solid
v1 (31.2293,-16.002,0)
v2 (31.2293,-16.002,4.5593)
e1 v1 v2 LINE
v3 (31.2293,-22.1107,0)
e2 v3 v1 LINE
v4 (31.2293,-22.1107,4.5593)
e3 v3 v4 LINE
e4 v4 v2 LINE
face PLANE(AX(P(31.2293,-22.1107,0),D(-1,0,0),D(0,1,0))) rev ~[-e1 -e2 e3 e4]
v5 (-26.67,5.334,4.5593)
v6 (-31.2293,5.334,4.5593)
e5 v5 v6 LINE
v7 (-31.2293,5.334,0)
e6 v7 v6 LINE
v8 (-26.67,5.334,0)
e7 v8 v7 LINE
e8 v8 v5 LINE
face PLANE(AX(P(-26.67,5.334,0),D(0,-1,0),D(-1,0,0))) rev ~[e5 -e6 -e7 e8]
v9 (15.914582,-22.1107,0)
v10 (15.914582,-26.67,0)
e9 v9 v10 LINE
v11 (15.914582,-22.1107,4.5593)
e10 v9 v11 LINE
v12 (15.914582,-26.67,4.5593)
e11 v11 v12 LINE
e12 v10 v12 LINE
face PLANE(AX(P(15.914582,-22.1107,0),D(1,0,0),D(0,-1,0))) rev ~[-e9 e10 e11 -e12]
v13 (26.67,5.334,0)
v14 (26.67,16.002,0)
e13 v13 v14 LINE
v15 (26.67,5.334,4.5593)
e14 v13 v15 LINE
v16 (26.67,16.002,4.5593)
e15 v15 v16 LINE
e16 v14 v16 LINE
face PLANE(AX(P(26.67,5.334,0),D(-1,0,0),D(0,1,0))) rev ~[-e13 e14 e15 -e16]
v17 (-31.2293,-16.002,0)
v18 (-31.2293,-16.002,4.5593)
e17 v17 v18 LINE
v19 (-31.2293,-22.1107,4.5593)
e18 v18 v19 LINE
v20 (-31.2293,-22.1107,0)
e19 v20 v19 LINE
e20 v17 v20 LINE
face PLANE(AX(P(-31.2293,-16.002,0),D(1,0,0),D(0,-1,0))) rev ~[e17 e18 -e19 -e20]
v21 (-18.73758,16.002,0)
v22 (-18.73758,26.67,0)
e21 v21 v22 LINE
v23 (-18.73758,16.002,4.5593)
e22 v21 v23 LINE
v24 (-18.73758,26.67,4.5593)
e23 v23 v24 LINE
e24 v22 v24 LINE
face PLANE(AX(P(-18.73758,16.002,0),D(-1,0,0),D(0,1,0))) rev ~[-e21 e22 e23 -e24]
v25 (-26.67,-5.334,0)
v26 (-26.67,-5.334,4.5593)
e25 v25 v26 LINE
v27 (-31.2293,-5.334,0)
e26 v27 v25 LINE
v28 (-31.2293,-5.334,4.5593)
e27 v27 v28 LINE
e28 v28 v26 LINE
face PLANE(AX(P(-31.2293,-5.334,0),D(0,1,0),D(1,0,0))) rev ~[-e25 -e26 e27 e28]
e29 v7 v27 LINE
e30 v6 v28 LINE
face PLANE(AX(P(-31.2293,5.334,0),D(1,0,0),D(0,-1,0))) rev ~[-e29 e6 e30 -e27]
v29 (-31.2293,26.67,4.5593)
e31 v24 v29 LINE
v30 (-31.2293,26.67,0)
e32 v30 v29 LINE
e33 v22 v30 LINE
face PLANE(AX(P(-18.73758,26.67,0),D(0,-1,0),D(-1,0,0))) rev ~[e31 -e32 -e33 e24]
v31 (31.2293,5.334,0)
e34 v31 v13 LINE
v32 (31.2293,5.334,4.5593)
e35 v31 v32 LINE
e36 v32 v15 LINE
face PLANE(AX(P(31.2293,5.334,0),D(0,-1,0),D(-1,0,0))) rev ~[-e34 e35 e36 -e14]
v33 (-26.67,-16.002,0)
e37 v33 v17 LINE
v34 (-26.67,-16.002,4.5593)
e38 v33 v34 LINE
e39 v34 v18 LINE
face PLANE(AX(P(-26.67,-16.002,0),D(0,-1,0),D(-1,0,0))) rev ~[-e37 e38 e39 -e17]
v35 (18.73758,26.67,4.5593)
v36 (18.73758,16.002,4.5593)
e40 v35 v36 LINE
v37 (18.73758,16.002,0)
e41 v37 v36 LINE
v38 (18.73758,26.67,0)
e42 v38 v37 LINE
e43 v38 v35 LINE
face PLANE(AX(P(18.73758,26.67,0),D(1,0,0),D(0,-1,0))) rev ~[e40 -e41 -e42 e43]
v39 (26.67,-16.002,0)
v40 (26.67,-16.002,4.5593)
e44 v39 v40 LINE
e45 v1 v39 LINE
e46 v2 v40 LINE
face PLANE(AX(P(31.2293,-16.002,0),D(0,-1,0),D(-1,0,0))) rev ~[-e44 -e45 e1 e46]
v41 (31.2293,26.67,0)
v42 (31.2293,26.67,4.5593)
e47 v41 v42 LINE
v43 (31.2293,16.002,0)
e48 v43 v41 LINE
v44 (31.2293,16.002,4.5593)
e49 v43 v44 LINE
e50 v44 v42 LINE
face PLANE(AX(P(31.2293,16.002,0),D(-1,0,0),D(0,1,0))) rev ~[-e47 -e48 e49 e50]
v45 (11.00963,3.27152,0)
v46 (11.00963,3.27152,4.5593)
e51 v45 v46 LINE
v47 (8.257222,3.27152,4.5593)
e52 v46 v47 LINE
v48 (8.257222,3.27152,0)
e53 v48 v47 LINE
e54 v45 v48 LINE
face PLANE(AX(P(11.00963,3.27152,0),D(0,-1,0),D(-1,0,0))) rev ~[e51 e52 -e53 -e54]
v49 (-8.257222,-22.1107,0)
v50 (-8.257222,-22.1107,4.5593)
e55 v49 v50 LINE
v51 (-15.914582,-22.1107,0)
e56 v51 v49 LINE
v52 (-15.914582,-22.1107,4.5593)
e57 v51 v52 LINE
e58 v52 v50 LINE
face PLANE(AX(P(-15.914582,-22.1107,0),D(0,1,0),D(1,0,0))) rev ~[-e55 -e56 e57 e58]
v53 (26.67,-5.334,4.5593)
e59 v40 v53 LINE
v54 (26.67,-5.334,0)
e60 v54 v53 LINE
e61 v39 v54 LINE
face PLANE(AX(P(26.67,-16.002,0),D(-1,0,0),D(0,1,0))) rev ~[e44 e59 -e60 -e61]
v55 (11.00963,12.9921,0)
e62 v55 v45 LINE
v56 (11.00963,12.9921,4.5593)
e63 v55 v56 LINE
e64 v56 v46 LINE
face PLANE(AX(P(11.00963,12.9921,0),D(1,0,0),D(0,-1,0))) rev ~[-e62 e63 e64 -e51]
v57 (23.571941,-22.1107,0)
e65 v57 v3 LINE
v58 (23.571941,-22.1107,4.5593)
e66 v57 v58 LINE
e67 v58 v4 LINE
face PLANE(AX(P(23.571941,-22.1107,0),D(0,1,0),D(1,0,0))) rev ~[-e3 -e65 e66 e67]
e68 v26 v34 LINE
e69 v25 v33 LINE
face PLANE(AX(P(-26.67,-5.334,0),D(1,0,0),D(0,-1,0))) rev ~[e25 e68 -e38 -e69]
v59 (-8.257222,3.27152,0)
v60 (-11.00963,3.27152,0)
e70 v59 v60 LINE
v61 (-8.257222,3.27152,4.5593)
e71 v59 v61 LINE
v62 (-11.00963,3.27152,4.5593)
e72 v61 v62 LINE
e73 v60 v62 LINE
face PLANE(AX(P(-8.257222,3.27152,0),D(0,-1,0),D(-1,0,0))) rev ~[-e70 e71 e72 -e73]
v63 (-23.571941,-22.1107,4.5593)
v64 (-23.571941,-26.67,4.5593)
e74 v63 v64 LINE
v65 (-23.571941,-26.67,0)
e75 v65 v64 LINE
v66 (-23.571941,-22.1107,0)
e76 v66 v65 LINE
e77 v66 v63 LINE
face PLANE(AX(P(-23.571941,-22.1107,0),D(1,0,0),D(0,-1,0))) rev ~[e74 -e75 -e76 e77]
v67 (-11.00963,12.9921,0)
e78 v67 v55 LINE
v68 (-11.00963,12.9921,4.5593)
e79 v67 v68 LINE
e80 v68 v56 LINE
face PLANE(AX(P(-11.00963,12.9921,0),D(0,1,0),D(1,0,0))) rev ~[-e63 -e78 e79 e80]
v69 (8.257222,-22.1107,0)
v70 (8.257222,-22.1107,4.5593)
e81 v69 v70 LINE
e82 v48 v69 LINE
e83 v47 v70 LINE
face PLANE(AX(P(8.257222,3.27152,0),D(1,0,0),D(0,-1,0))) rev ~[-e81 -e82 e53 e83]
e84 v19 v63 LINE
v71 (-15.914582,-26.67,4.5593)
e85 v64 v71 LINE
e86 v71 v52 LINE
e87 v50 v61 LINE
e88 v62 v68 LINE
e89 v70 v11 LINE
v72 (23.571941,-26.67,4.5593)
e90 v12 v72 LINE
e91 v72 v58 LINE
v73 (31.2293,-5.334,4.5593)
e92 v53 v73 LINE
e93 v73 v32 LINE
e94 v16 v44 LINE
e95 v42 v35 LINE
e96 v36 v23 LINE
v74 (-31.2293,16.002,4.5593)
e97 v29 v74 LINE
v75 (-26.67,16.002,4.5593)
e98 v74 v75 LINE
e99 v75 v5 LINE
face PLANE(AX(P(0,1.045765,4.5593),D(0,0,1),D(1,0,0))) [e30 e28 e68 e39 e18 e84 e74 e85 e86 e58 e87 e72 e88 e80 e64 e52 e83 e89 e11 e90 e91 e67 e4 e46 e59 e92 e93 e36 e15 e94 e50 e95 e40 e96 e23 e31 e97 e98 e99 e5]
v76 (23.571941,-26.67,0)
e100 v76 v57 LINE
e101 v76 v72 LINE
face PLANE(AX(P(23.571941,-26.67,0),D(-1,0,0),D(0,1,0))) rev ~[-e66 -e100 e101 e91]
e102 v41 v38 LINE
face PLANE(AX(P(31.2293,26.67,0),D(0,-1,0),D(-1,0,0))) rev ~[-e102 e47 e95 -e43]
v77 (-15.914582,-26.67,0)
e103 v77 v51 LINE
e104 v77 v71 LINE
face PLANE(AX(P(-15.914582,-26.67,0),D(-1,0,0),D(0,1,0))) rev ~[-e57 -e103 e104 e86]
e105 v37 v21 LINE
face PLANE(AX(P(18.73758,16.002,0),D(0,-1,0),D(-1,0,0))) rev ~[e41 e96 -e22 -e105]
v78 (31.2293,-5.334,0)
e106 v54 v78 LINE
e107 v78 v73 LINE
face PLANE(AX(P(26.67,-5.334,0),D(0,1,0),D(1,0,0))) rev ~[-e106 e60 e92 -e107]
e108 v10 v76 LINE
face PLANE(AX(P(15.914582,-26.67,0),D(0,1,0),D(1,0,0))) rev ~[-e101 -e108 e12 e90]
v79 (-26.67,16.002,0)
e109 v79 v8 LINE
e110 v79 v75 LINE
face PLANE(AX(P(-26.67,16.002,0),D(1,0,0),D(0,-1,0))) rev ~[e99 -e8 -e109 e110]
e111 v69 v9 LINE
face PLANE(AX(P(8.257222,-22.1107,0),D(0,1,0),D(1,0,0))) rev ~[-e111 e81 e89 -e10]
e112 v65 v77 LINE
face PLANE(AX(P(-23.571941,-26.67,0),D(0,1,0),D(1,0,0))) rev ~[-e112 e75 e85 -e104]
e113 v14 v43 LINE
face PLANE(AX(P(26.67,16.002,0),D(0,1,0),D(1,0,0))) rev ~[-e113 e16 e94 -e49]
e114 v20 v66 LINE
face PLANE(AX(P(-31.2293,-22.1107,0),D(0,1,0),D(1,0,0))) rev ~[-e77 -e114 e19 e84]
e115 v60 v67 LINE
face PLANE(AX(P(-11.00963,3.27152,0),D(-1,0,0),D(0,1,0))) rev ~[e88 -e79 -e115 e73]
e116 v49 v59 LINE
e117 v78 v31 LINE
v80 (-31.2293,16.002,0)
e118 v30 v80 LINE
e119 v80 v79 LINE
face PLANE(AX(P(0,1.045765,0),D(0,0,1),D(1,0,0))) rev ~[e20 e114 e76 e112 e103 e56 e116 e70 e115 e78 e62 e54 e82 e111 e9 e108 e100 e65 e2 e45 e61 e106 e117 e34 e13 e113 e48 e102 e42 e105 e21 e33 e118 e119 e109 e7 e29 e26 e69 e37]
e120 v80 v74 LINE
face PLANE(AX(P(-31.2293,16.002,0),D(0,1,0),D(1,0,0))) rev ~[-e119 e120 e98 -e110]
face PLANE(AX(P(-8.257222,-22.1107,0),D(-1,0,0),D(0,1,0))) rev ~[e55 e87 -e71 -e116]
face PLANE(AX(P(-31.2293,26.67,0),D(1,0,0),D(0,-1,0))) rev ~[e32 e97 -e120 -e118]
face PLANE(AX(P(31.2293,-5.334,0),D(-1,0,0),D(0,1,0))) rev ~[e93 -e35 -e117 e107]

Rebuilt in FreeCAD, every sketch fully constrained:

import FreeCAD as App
import Part
import Sketcher

V = App.Vector
Q = App.Units.Quantity


def add_polygon(sketch, points):
    """Adds a closed chain of lines whose ends are joined by coincident constraints."""
    first, n = sketch.GeometryCount, len(points)
    for a, b in zip(points, points[1:] + points[:1]):
        sketch.addGeometry(Part.LineSegment(App.Vector(*a, 0), App.Vector(*b, 0)), False)
    for i in range(n):
        sketch.addConstraint(Sketcher.Constraint("Coincident", first + i, 2, first + (i + 1) % n, 1))

doc = App.newDocument("Part")
body = doc.addObject("PartDesign::Body", "Body")

# Sketch on XY plane
sketch1 = doc.addObject("Sketcher::SketchObject", "Sketch")
body.addObject(sketch1)
sketch1.AttachmentSupport = (doc.XY_Plane, [""])
sketch1.MapMode = "FlatFace"
add_polygon(sketch1, [(-31.2, -16), (-31.2, -22.1), (-23.6, -22.1), (-23.6, -26.7), (-15.9, -26.7), (-15.9, -22.1), (-8.3, -22.1), (-8.3, 3.3), (-11, 3.3), (-11, 13), (11, 13), (11, 3.3), (8.3, 3.3), (8.3, -22.1), (15.9, -22.1), (15.9, -26.7), (23.6, -26.7), (23.6, -22.1), (31.2, -22.1), (31.2, -16), (26.7, -16), (26.7, -5.3), (31.2, -5.3), (31.2, 5.3), (26.7, 5.3), (26.7, 16), (31.2, 16), (31.2, 26.7), (18.7, 26.7), (18.7, 16), (-18.7, 16), (-18.7, 26.7), (-31.2, 26.7), (-31.2, 16), (-26.7, 16), (-26.7, 5.3), (-31.2, 5.3), (-31.2, -5.3), (-26.7, -5.3), (-26.7, -16)])  # lines 0-39
sketch1.addConstraint([
    Sketcher.Constraint("Vertical", 0),
    Sketcher.Constraint("Horizontal", 1),
    Sketcher.Constraint("Vertical", 2),
    Sketcher.Constraint("Horizontal", 3),
    Sketcher.Constraint("Vertical", 4),
    Sketcher.Constraint("Horizontal", 5),
    Sketcher.Constraint("Vertical", 6),
    Sketcher.Constraint("Horizontal", 7),
    Sketcher.Constraint("Vertical", 8),
    Sketcher.Constraint("Horizontal", 9),
    Sketcher.Constraint("Vertical", 10),
    Sketcher.Constraint("Horizontal", 11),
    Sketcher.Constraint("Vertical", 12),
    Sketcher.Constraint("Horizontal", 13),
    Sketcher.Constraint("Vertical", 14),
    Sketcher.Constraint("Horizontal", 15),
    Sketcher.Constraint("Vertical", 16),
    Sketcher.Constraint("Horizontal", 17),
    Sketcher.Constraint("Vertical", 18),
    Sketcher.Constraint("Horizontal", 19),
    Sketcher.Constraint("Vertical", 20),
    Sketcher.Constraint("Horizontal", 21),
    Sketcher.Constraint("Vertical", 22),
    Sketcher.Constraint("Horizontal", 23),
    Sketcher.Constraint("Vertical", 24),
    Sketcher.Constraint("Horizontal", 25),
    Sketcher.Constraint("Vertical", 26),
    Sketcher.Constraint("Horizontal", 27),
    Sketcher.Constraint("Vertical", 28),
    Sketcher.Constraint("Horizontal", 29),
    Sketcher.Constraint("Vertical", 30),
    Sketcher.Constraint("Horizontal", 31),
    Sketcher.Constraint("Vertical", 32),
    Sketcher.Constraint("Horizontal", 33),
    Sketcher.Constraint("Vertical", 34),
    Sketcher.Constraint("Horizontal", 35),
    Sketcher.Constraint("Vertical", 36),
    Sketcher.Constraint("Horizontal", 37),
    Sketcher.Constraint("Vertical", 38),
    Sketcher.Constraint("Horizontal", 39),
    Sketcher.Constraint("Symmetric", 18, 2, 32, 2, -1, 1),
    Sketcher.Constraint("Symmetric", 20, 2, 34, 2, -1, 1),
    Sketcher.Constraint("Symmetric", 22, 2, 36, 2, -1, 1),
    Sketcher.Constraint("Symmetric", 24, 2, 38, 2, -1, 1),
    Sketcher.Constraint("Symmetric", 7, 2, 10, 2, -2),
    Sketcher.Constraint("Symmetric", 5, 2, 12, 2, -2),
    Sketcher.Constraint("Symmetric", 3, 2, 14, 2, -2),
    Sketcher.Constraint("Symmetric", 1, 2, 16, 2, -2),
    Sketcher.Constraint("Symmetric", 27, 2, 30, 2, -2),
    Sketcher.Constraint("Symmetric", 25, 2, 32, 2, -2),
    Sketcher.Constraint("Symmetric", 23, 2, 34, 2, -2),
    Sketcher.Constraint("Horizontal", 1, 2, 4, 2),
    Sketcher.Constraint("Horizontal", 25, 2, 28, 2),
    Sketcher.Constraint("Vertical", 18, 2, 21, 2),
    Sketcher.Constraint("Vertical", 0, 2, 31, 2),
    Sketcher.Constraint("Equal", 1, 3),
    Sketcher.Constraint("Equal", 3, 5),
    Sketcher.Constraint("Equal", 39, 2),
    Sketcher.Constraint("Equal", 20, 22),
    Sketcher.Constraint("Equal", 24, 26),
    Sketcher.Constraint("DistanceY", 20, 1, 20, 2, Q("0.42 in")),
    Sketcher.Constraint("DistanceY", 2, 2, -1, 1, Q("1.05 in")),
    Sketcher.Constraint("DistanceX", -1, 1, 19, 2, Q("1.05 in")),
    Sketcher.Constraint("DistanceX", 9, 1, 9, 2, Q("0.8669 in")),
    Sketcher.Constraint("DistanceX", 19, 2, 19, 1, Q("0.1795 in")),
    Sketcher.Constraint("DistanceX", 27, 2, 27, 1, Q("0.4918 in")),
    Sketcher.Constraint("DistanceY", 6, 1, 6, 2, Q("0.9993 in")),
    Sketcher.Constraint("DistanceY", 8, 1, 8, 2, Q("0.3827 in")),
    Sketcher.Constraint("DistanceX", 1, 1, 1, 2, 7.657359),
])
pad1 = doc.addObject("PartDesign::Pad", "Pad")
body.addObject(pad1)
pad1.Profile = sketch1
pad1.Length = Q("0.1795 in")

doc.recompute()
